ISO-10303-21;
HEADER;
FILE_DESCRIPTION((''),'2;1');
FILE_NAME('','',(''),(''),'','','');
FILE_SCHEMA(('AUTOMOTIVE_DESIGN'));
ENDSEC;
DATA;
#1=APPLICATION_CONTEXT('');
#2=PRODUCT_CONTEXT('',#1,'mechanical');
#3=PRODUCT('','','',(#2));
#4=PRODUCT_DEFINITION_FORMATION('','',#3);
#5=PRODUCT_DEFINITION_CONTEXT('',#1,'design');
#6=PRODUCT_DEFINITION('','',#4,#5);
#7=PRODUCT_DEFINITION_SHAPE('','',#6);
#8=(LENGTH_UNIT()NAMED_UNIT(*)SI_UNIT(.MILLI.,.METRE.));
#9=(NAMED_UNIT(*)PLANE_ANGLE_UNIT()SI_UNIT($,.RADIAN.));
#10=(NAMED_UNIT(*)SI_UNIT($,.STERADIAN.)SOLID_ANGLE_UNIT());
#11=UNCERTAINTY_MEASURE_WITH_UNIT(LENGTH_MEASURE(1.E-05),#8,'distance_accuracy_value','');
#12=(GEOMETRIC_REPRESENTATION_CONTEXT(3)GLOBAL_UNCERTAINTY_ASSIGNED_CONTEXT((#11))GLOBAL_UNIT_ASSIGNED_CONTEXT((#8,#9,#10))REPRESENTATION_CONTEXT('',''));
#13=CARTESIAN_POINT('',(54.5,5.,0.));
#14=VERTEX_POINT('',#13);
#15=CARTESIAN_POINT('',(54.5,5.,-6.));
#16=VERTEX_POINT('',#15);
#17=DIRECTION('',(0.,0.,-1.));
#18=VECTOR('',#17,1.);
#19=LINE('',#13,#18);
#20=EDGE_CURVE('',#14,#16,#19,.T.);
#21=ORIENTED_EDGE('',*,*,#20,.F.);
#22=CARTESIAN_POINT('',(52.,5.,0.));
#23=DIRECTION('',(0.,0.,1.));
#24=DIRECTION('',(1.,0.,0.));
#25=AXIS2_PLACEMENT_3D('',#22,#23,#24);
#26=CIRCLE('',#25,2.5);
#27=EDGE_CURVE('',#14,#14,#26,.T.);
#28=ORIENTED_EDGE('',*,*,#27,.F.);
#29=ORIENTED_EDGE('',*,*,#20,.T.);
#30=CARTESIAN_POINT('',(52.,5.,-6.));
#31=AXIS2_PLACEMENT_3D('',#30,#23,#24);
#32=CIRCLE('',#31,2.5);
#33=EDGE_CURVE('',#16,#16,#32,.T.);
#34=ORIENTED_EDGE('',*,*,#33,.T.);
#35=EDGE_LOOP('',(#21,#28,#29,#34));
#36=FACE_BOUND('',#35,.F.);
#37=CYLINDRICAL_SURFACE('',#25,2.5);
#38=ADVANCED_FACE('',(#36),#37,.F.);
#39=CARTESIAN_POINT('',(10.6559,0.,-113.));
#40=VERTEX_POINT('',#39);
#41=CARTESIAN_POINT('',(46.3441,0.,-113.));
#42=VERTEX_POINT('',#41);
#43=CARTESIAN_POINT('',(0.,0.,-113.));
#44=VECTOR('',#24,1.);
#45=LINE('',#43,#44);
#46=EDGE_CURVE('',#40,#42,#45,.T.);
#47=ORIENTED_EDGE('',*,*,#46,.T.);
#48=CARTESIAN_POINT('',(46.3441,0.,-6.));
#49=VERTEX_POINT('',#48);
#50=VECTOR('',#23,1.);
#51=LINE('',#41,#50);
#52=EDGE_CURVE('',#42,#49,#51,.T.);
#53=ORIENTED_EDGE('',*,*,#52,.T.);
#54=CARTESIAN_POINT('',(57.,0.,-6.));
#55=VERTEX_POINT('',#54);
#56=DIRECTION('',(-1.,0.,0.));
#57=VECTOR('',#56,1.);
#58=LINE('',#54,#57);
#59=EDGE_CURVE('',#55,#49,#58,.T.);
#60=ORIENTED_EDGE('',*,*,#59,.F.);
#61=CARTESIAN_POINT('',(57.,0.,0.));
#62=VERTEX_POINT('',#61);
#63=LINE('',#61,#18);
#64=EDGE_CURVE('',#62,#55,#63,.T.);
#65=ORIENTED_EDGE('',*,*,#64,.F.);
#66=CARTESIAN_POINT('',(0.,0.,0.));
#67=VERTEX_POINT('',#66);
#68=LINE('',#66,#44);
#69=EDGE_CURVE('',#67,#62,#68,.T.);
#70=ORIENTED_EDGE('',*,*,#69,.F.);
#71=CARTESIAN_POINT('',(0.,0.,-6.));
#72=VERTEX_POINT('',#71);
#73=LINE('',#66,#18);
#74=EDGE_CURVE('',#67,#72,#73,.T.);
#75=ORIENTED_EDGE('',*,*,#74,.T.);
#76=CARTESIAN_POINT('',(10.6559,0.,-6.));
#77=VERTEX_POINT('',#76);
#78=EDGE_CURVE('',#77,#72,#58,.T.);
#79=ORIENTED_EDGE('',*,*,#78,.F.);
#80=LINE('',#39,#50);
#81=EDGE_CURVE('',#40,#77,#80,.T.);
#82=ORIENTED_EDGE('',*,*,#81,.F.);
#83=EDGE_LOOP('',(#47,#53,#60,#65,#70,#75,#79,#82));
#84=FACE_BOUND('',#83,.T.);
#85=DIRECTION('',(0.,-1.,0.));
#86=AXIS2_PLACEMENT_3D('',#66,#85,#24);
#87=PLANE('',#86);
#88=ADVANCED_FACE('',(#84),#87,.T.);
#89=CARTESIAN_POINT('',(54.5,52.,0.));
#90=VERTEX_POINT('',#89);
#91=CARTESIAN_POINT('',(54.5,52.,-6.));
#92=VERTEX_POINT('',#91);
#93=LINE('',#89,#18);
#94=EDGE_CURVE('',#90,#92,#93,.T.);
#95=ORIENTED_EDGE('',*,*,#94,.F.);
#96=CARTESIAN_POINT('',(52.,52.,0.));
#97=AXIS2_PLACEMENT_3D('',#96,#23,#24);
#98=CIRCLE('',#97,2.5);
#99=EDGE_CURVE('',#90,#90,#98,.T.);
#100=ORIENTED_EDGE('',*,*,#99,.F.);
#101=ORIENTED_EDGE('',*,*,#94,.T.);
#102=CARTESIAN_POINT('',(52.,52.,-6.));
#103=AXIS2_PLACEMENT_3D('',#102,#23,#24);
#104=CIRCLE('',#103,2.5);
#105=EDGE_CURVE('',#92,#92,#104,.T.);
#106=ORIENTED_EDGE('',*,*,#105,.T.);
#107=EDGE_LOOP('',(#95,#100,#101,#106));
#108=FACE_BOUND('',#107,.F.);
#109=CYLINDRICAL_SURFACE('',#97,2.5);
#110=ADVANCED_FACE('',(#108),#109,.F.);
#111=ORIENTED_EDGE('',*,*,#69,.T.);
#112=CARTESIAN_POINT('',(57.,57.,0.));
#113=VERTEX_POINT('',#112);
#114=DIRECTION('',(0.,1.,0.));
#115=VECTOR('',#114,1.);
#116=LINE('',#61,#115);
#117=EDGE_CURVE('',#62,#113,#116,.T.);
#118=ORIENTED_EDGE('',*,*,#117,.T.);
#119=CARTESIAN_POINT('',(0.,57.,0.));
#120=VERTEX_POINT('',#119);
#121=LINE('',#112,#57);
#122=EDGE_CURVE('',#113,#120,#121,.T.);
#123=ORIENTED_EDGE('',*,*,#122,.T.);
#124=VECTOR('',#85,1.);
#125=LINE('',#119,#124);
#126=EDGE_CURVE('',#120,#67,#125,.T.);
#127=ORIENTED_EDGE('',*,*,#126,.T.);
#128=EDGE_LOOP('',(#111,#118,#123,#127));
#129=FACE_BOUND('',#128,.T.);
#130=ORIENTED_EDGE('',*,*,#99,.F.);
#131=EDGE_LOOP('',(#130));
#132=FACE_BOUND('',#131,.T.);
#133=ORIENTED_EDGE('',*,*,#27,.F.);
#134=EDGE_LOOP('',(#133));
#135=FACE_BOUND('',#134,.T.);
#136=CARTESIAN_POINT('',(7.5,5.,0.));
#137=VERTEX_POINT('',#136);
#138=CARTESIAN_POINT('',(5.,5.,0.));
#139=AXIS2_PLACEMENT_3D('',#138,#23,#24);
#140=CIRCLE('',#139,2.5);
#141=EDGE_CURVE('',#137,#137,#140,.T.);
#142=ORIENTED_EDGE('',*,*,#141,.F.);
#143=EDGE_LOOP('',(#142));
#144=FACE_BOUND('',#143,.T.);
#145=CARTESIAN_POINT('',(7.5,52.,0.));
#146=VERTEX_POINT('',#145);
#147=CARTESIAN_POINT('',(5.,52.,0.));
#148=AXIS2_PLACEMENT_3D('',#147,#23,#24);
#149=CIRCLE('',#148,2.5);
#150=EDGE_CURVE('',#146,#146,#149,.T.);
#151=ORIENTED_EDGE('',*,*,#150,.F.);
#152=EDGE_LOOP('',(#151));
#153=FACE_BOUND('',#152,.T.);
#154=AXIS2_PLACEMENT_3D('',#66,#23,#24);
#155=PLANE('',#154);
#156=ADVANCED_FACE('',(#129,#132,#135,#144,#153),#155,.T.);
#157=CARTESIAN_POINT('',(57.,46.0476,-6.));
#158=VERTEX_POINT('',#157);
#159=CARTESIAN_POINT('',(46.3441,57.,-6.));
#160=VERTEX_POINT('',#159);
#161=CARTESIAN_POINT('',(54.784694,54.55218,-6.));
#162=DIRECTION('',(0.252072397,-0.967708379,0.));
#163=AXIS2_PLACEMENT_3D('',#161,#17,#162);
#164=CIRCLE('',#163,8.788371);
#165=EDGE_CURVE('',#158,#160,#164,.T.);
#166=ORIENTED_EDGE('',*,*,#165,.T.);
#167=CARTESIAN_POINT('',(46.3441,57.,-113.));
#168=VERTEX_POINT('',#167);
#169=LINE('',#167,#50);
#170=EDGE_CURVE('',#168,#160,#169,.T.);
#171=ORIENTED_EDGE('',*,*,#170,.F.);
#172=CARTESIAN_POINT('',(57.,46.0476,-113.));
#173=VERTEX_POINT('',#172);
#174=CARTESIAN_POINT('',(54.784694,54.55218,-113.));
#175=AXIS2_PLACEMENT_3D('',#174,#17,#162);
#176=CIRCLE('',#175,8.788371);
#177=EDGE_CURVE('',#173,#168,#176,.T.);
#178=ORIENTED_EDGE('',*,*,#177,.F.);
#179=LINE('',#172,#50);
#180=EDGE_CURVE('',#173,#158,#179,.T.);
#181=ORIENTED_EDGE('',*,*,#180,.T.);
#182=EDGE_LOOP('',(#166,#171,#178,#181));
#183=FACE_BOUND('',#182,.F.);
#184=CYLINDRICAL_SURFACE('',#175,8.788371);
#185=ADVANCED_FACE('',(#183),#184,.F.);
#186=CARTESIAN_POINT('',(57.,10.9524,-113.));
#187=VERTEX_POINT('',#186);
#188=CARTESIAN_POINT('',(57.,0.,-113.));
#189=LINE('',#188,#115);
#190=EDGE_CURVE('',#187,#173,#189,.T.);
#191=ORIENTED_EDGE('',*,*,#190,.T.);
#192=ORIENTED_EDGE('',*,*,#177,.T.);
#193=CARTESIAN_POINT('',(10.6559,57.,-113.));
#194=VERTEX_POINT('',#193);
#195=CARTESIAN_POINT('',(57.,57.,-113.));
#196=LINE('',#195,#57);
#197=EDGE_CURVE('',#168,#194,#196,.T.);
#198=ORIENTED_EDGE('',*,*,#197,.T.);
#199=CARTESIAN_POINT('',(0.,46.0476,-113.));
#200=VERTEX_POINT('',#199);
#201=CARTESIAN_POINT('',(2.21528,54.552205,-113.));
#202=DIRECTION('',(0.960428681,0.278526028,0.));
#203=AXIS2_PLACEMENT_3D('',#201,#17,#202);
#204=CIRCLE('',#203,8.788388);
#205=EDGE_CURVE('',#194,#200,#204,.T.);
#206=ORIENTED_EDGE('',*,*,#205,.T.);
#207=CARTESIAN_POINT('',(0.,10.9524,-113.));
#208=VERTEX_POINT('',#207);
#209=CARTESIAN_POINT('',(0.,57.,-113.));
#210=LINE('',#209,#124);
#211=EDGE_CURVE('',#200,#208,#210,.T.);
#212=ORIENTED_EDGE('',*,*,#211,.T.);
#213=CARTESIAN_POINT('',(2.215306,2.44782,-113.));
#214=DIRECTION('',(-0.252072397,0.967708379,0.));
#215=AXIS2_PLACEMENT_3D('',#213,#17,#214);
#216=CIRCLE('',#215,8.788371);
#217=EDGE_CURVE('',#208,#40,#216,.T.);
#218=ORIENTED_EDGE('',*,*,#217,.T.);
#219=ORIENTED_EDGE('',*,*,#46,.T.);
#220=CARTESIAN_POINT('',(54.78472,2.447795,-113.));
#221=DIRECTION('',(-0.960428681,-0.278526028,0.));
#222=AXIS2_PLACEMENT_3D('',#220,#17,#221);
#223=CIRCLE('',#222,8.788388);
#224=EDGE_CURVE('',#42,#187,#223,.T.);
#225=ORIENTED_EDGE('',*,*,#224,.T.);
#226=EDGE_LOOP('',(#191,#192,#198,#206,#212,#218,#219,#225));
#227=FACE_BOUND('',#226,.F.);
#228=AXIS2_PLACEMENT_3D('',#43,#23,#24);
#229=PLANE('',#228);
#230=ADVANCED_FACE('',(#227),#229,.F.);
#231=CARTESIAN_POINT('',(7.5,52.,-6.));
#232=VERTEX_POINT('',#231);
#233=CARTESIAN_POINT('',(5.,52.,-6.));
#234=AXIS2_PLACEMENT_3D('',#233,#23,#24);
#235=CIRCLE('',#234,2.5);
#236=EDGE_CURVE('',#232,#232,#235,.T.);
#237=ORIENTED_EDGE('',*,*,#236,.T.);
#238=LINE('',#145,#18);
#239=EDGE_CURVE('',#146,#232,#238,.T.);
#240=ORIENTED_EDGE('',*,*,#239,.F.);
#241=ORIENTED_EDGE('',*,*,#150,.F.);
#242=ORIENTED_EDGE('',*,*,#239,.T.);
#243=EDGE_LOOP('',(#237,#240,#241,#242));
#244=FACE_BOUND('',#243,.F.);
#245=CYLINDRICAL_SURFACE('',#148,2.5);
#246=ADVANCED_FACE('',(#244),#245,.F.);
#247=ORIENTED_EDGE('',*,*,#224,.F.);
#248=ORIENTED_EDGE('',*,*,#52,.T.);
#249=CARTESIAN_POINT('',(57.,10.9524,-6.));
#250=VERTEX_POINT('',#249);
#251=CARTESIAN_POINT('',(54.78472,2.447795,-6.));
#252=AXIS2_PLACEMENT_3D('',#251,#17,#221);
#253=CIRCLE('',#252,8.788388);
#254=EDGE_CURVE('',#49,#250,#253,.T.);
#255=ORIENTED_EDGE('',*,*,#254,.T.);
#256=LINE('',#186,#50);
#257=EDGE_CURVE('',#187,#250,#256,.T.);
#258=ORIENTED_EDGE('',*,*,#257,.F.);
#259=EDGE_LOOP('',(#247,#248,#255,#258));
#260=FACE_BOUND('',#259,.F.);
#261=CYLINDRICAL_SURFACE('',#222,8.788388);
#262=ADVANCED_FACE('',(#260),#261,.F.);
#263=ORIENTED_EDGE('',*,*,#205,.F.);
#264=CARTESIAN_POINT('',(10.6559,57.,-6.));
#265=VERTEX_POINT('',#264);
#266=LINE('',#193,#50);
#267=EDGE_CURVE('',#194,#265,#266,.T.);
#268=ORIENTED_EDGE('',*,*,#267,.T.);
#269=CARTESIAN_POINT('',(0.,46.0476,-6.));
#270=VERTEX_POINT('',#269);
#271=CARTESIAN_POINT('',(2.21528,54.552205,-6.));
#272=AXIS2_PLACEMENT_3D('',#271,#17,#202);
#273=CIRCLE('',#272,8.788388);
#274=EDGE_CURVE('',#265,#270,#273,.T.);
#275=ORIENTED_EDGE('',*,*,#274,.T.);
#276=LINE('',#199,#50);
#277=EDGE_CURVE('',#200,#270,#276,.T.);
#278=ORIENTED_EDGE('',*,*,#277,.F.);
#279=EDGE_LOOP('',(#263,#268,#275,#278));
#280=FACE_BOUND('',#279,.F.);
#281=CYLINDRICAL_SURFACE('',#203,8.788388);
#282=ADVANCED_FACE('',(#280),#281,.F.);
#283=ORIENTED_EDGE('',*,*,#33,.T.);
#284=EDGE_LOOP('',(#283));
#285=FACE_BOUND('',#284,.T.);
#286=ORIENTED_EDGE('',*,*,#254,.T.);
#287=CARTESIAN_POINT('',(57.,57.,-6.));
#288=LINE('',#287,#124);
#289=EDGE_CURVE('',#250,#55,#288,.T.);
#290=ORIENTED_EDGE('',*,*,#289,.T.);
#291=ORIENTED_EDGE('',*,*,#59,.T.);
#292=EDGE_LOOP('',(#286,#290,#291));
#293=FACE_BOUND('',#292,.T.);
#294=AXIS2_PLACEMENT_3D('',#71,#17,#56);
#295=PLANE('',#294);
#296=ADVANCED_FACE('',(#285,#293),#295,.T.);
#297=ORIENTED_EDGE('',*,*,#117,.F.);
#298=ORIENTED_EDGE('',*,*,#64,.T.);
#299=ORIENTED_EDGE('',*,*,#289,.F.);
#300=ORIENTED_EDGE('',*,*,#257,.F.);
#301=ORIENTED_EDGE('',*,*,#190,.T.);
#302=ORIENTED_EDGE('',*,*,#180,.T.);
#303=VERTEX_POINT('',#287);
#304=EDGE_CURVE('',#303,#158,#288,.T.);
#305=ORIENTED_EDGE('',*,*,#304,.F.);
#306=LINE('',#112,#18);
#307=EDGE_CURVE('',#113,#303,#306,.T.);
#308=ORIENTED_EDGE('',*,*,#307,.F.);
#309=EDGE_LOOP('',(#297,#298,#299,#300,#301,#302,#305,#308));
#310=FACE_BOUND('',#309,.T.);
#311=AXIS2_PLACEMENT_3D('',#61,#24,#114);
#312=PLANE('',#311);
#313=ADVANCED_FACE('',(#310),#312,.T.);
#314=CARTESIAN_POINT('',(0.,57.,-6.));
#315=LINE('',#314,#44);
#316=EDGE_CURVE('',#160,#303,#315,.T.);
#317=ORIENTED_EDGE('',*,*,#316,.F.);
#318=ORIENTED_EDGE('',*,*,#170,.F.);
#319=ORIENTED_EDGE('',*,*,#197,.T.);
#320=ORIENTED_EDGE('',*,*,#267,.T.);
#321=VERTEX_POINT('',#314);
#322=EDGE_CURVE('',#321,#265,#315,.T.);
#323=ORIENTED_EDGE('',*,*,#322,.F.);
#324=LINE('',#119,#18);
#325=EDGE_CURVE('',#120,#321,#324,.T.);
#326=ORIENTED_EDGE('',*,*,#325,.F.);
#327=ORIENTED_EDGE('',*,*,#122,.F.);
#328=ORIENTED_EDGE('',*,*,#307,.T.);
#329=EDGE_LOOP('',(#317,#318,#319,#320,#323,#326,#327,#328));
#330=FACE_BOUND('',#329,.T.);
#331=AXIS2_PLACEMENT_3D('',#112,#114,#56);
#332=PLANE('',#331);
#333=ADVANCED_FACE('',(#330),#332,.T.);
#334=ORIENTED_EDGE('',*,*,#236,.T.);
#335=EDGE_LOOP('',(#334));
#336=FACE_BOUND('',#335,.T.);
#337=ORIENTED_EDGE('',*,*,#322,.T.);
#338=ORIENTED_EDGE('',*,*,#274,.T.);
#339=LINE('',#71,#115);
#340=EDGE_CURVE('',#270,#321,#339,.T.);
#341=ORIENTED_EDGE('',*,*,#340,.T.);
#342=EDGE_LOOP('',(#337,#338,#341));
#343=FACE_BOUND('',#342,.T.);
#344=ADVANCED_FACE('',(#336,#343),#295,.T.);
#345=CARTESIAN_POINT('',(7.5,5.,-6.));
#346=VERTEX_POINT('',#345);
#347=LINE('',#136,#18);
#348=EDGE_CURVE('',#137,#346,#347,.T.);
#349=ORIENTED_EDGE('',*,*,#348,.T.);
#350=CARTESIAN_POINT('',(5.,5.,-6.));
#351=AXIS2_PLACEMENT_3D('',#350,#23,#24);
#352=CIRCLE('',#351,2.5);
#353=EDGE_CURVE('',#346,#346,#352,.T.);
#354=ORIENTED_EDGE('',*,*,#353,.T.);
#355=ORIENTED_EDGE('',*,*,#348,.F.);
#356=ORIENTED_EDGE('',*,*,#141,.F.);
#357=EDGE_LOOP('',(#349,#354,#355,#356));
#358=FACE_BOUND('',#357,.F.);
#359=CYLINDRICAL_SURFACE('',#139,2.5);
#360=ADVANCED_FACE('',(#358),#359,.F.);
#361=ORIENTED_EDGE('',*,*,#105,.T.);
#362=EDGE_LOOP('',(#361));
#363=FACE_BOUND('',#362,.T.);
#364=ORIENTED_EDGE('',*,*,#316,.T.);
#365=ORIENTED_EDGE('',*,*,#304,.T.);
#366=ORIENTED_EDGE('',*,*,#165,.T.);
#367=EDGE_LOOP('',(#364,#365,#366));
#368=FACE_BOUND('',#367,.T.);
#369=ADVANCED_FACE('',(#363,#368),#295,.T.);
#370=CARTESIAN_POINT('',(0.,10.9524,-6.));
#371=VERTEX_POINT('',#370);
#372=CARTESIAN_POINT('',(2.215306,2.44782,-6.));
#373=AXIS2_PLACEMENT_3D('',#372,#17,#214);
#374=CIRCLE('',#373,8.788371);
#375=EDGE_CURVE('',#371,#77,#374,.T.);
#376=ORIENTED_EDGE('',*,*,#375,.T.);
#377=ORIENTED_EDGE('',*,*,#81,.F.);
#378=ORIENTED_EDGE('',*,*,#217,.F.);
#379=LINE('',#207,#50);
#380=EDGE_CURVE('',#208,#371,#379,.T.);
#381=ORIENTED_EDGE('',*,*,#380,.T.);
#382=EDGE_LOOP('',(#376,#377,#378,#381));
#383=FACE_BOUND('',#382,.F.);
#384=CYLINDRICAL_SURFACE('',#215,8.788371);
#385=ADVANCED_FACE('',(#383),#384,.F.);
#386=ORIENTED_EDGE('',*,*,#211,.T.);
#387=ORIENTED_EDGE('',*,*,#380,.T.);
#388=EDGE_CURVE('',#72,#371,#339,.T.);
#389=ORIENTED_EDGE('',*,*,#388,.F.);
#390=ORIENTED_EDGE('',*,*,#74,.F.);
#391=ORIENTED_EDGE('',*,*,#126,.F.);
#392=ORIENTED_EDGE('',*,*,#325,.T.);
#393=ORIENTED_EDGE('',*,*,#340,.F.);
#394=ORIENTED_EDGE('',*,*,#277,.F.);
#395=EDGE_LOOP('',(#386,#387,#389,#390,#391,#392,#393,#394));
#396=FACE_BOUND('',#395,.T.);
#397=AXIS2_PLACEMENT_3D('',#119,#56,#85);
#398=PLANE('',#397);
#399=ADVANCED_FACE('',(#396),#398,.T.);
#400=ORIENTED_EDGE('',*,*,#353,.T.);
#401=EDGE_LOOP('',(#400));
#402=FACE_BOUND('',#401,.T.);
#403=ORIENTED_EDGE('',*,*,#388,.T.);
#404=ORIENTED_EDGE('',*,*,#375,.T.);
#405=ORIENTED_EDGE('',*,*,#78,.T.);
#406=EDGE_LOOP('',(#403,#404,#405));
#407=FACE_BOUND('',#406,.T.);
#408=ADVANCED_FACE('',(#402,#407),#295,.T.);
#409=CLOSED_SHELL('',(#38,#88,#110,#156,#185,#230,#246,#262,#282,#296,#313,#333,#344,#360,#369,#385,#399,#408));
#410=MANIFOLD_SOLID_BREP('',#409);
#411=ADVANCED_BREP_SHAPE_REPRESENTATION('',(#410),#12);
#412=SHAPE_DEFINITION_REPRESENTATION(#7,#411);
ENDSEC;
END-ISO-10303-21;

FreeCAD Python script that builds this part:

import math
import FreeCAD as App
import Part
import Sketcher

V = App.Vector
Q = App.Units.Quantity


def add_polygon(sketch, points):
    """Adds a closed chain of lines whose ends are joined by coincident constraints."""
    first, n = sketch.GeometryCount, len(points)
    for a, b in zip(points, points[1:] + points[:1]):
        sketch.addGeometry(Part.LineSegment(App.Vector(*a, 0), App.Vector(*b, 0)), False)
    for i in range(n):
        sketch.addConstraint(Sketcher.Constraint("Coincident", first + i, 2, first + (i + 1) % n, 1))

doc = App.newDocument("Part")
params = doc.addObject("Spreadsheet::Sheet", "Params")
for row, (alias, value) in enumerate([
    ("sketch1_diameter", "5 mm"),
    ("sketch1_width", "57 mm"),
    ("pad1_length", "113 mm"),
    ("pocket1_length", "107 mm"),
], start=1):
    params.set(f"A{row}", alias)
    params.set(f"B{row}", "=" + value)
    params.setAlias(f"B{row}", alias)

body = doc.addObject("PartDesign::Body", "Body")

# Sketch on XY plane
sketch1 = doc.addObject("Sketcher::SketchObject", "Sketch")
body.addObject(sketch1)
sketch1.AttachmentSupport = (doc.XY_Plane, [""])
sketch1.MapMode = "FlatFace"
add_polygon(sketch1, [(0, 57), (0, 0), (57, 0), (57, 57)])  # lines 0-3
sketch1.addGeometry(Part.Circle(V(5, 5, 0), V(0, 0, 1), 2.5), False)  # 4
sketch1.addGeometry(Part.Circle(V(52, 5, 0), V(0, 0, 1), 2.5), False)  # 5
sketch1.addGeometry(Part.Circle(V(5, 52, 0), V(0, 0, 1), 2.5), False)  # 6
sketch1.addGeometry(Part.Circle(V(52, 52, 0), V(0, 0, 1), 2.5), False)  # 7
sketch1.addConstraint([
    Sketcher.Constraint("Vertical", 0),
    Sketcher.Constraint("Horizontal", 1),
    Sketcher.Constraint("Vertical", 2),
    Sketcher.Constraint("Horizontal", 3),
    Sketcher.Constraint("Coincident", 0, 2, -1, 1),
    Sketcher.Constraint("Equal", 4, 5),
    Sketcher.Constraint("Equal", 5, 6),
    Sketcher.Constraint("Equal", 6, 7),
    Sketcher.Constraint("Horizontal", 4, 3, 5, 3),
    Sketcher.Constraint("Horizontal", 6, 3, 7, 3),
    Sketcher.Constraint("Vertical", 4, 3, 6, 3),
    Sketcher.Constraint("Vertical", 5, 3, 7, 3),
    Sketcher.Constraint("Equal", 3, 0),
    Sketcher.Constraint("Diameter", 4, Q("5 mm")),
    Sketcher.Constraint("DistanceX", 1, 1, 1, 2, Q("57 mm")),
    Sketcher.Constraint("DistanceX", -1, 1, 4, 3, Q("5 mm")),
    Sketcher.Constraint("DistanceY", -1, 1, 4, 3, Q("5 mm")),
    Sketcher.Constraint("DistanceX", 5, 3, 1, 2, Q("5 mm")),
    Sketcher.Constraint("DistanceY", 7, 3, 2, 2, Q("5 mm")),
])
sketch1.setExpression("Constraints[17]", "Params.sketch1_diameter")
sketch1.setExpression("Constraints[18]", "Params.sketch1_width")
pad1 = doc.addObject("PartDesign::Pad", "Pad")
body.addObject(pad1)
pad1.Profile = sketch1
pad1.setExpression("Length", "Params.pad1_length")
pad1.Reversed = True

# Sketch on XY plane
sketch2 = doc.addObject("Sketcher::SketchObject", "Sketch001")
body.addObject(sketch2)
sketch2.AttachmentSupport = (doc.XY_Plane, [""])
sketch2.MapMode = "FlatFace"
sketch2.AttachmentOffset = App.Placement(V(0, 0, -113), App.Rotation())
sketch2.addGeometry([
    Part.LineSegment(V(0, 46, 0), V(0, 57, 0)),  # 0
    Part.LineSegment(V(0, 57, 0), V(11, 57, 0)),  # 1
    Part.ArcOfCircle(Part.Circle(V(2, 55, 0), V(0, 0, 1), 9), math.radians(-105), math.radians(16)),  # 2
    Part.ArcOfCircle(Part.Circle(V(55, 55, 0), V(0, 0, 1), 9), math.radians(164), math.radians(285)),  # 3
    Part.LineSegment(V(46, 57, 0), V(57, 57, 0)),  # 4
    Part.LineSegment(V(57, 57, 0), V(57, 46, 0)),  # 5
    Part.LineSegment(V(0, 0, 0), V(0, 11, 0)),  # 6
    Part.ArcOfCircle(Part.Circle(V(2, 2, 0), V(0, 0, 1), 9), math.radians(-16), math.radians(105)),  # 7
    Part.LineSegment(V(11, 0, 0), V(0, 0, 0)),  # 8
    Part.LineSegment(V(57, 0, 0), V(46, 0, 0)),  # 9
    Part.ArcOfCircle(Part.Circle(V(55, 2, 0), V(0, 0, 1), 9), math.radians(75), math.radians(196)),  # 10
    Part.LineSegment(V(57, 11, 0), V(57, 0, 0)),  # 11
], False)
sketch2.addConstraint([
    Sketcher.Constraint("Coincident", 0, 2, 1, 1),
    Sketcher.Constraint("Coincident", 1, 2, 2, 2),
    Sketcher.Constraint("Coincident", 2, 1, 0, 1),
    Sketcher.Constraint("Coincident", 3, 1, 4, 1),
    Sketcher.Constraint("Coincident", 4, 2, 5, 1),
    Sketcher.Constraint("Coincident", 5, 2, 3, 2),
    Sketcher.Constraint("Coincident", 6, 2, 7, 2),
    Sketcher.Constraint("Coincident", 7, 1, 8, 1),
    Sketcher.Constraint("Coincident", 8, 2, 6, 1),
    Sketcher.Constraint("Coincident", 9, 2, 10, 2),
    Sketcher.Constraint("Coincident", 10, 1, 11, 1),
    Sketcher.Constraint("Coincident", 11, 2, 9, 1),
    Sketcher.Constraint("Vertical", 0),
    Sketcher.Constraint("Horizontal", 1),
    Sketcher.Constraint("Horizontal", 4),
    Sketcher.Constraint("Vertical", 5),
    Sketcher.Constraint("Vertical", 6),
    Sketcher.Constraint("Horizontal", 8),
    Sketcher.Constraint("Horizontal", 9),
    Sketcher.Constraint("Vertical", 11),
    Sketcher.Constraint("Coincident", 8, 2, -1, 1),
    Sketcher.Constraint("Equal", 2, 3),
    Sketcher.Constraint("Equal", 3, 7),
    Sketcher.Constraint("Equal", 7, 10),
    Sketcher.Constraint("PointOnObject", 0, 2, -2),
    Sketcher.Constraint("PointOnObject", 9, 2, -1),
    Sketcher.Constraint("Horizontal", 2, 3, 3, 3),
    Sketcher.Constraint("Horizontal", 7, 3, 10, 3),
    Sketcher.Constraint("Horizontal", 1, 2, 3, 1),
    Sketcher.Constraint("Horizontal", 2, 1, 5, 2),
    Sketcher.Constraint("Horizontal", 6, 2, 10, 1),
    Sketcher.Constraint("Vertical", 2, 3, 7, 3),
    Sketcher.Constraint("Vertical", 3, 3, 10, 3),
    Sketcher.Constraint("Vertical", 1, 2, 7, 1),
    Sketcher.Constraint("DistanceY", -1, 1, 0, 2, Q("57 mm")),
    Sketcher.Constraint("DistanceX", -1, 1, 4, 2, Q("57 mm")),
    Sketcher.Constraint("Radius", 2, Q("8.7884 mm")),
    Sketcher.Constraint("DistanceX", 1, 1, 1, 2, Q("10.656 mm")),
    Sketcher.Constraint("DistanceY", 0, 1, 0, 2, Q("10.9524 mm")),
])
pocket1 = doc.addObject("PartDesign::Pocket", "Pocket")
body.addObject(pocket1)
pocket1.Profile = sketch2
pocket1.setExpression("Length", "Params.pocket1_length")
pocket1.Reversed = True

doc.recompute()
